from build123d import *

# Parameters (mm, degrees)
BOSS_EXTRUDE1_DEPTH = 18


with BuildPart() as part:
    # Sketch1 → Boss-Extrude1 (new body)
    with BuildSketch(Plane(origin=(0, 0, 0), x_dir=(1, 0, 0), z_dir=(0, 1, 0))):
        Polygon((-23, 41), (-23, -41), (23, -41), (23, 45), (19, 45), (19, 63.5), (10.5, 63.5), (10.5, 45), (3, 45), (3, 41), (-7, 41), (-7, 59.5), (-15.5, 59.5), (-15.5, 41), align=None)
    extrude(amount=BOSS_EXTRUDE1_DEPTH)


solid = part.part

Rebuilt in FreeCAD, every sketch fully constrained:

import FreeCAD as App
import Part
import Sketcher

V = App.Vector


def add_polygon(sketch, points):
    """Adds a closed chain of lines whose ends are joined by coincident constraints."""
    first, n = sketch.GeometryCount, len(points)
    for a, b in zip(points, points[1:] + points[:1]):
        sketch.addGeometry(Part.LineSegment(App.Vector(*a, 0), App.Vector(*b, 0)), False)
    for i in range(n):
        sketch.addConstraint(Sketcher.Constraint("Coincident", first + i, 2, first + (i + 1) % n, 1))

doc = App.newDocument("Part")
body = doc.addObject("PartDesign::Body", "Body")

# Sketch on XZ plane
sketch1 = body.newObject("Sketcher::SketchObject", "Sketch")
sketch1.AttachmentSupport = (doc.getObject("XZ_Plane"), [""])
sketch1.MapMode = "FlatFace"
add_polygon(sketch1, [(-23, -41), (-23, 41), (23, 41), (23, -45), (19, -45), (19, -63.5), (10.5, -63.5), (10.5, -45), (3, -45), (3, -41), (-7, -41), (-7, -59.5), (-15.5, -59.5), (-15.5, -41)])  # lines 0-13
sketch1.addConstraint(Sketcher.Constraint("Vertical", 0))
sketch1.addConstraint(Sketcher.Constraint("Horizontal", 1))
sketch1.addConstraint(Sketcher.Constraint("Vertical", 2))
sketch1.addConstraint(Sketcher.Constraint("Horizontal", 3))
sketch1.addConstraint(Sketcher.Constraint("Vertical", 4))
sketch1.addConstraint(Sketcher.Constraint("Horizontal", 5))
sketch1.addConstraint(Sketcher.Constraint("Vertical", 6))
sketch1.addConstraint(Sketcher.Constraint("Horizontal", 7))
sketch1.addConstraint(Sketcher.Constraint("Vertical", 8))
sketch1.addConstraint(Sketcher.Constraint("Horizontal", 9))
sketch1.addConstraint(Sketcher.Constraint("Vertical", 10))
sketch1.addConstraint(Sketcher.Constraint("Horizontal", 11))
sketch1.addConstraint(Sketcher.Constraint("Vertical", 12))
sketch1.addConstraint(Sketcher.Constraint("Horizontal", 13))
sketch1.addConstraint(Sketcher.Constraint("Symmetric", 1, 2, 13, 2, -1, 1))
sketch1.addConstraint(Sketcher.Constraint("Horizontal", 3, 2, 6, 2))
sketch1.addConstraint(Sketcher.Constraint("Horizontal", 9, 2, 12, 2))
sketch1.addConstraint(Sketcher.Constraint("Equal", 5, 11))
sketch1.addConstraint(Sketcher.Constraint("Equal", 7, 13))
sketch1.addConstraint(Sketcher.Constraint("Equal", 3, 8))
sketch1.addConstraint(Sketcher.Constraint("Equal", 6, 10))
sketch1.addConstraint(Sketcher.Constraint("DistanceX", 1, 1, 1, 2, 46.0))
sketch1.addConstraint(Sketcher.Constraint("DistanceX", 3, 2, 3, 1, 4.0))
sketch1.addConstraint(Sketcher.Constraint("DistanceX", 9, 2, 9, 1, 10.0))
sketch1.addConstraint(Sketcher.Constraint("DistanceY", 0, 1, 0, 2, 82.0))
sketch1.addConstraint(Sketcher.Constraint("DistanceX", 5, 2, 5, 1, 8.5))
sketch1.addConstraint(Sketcher.Constraint("DistanceY", 4, 2, 4, 1, 18.5))
pad1 = body.newObject("PartDesign::Pad", "Pad")
pad1.Profile = sketch1
pad1.Length = 18
pad1.Reversed = True

doc.recompute()
